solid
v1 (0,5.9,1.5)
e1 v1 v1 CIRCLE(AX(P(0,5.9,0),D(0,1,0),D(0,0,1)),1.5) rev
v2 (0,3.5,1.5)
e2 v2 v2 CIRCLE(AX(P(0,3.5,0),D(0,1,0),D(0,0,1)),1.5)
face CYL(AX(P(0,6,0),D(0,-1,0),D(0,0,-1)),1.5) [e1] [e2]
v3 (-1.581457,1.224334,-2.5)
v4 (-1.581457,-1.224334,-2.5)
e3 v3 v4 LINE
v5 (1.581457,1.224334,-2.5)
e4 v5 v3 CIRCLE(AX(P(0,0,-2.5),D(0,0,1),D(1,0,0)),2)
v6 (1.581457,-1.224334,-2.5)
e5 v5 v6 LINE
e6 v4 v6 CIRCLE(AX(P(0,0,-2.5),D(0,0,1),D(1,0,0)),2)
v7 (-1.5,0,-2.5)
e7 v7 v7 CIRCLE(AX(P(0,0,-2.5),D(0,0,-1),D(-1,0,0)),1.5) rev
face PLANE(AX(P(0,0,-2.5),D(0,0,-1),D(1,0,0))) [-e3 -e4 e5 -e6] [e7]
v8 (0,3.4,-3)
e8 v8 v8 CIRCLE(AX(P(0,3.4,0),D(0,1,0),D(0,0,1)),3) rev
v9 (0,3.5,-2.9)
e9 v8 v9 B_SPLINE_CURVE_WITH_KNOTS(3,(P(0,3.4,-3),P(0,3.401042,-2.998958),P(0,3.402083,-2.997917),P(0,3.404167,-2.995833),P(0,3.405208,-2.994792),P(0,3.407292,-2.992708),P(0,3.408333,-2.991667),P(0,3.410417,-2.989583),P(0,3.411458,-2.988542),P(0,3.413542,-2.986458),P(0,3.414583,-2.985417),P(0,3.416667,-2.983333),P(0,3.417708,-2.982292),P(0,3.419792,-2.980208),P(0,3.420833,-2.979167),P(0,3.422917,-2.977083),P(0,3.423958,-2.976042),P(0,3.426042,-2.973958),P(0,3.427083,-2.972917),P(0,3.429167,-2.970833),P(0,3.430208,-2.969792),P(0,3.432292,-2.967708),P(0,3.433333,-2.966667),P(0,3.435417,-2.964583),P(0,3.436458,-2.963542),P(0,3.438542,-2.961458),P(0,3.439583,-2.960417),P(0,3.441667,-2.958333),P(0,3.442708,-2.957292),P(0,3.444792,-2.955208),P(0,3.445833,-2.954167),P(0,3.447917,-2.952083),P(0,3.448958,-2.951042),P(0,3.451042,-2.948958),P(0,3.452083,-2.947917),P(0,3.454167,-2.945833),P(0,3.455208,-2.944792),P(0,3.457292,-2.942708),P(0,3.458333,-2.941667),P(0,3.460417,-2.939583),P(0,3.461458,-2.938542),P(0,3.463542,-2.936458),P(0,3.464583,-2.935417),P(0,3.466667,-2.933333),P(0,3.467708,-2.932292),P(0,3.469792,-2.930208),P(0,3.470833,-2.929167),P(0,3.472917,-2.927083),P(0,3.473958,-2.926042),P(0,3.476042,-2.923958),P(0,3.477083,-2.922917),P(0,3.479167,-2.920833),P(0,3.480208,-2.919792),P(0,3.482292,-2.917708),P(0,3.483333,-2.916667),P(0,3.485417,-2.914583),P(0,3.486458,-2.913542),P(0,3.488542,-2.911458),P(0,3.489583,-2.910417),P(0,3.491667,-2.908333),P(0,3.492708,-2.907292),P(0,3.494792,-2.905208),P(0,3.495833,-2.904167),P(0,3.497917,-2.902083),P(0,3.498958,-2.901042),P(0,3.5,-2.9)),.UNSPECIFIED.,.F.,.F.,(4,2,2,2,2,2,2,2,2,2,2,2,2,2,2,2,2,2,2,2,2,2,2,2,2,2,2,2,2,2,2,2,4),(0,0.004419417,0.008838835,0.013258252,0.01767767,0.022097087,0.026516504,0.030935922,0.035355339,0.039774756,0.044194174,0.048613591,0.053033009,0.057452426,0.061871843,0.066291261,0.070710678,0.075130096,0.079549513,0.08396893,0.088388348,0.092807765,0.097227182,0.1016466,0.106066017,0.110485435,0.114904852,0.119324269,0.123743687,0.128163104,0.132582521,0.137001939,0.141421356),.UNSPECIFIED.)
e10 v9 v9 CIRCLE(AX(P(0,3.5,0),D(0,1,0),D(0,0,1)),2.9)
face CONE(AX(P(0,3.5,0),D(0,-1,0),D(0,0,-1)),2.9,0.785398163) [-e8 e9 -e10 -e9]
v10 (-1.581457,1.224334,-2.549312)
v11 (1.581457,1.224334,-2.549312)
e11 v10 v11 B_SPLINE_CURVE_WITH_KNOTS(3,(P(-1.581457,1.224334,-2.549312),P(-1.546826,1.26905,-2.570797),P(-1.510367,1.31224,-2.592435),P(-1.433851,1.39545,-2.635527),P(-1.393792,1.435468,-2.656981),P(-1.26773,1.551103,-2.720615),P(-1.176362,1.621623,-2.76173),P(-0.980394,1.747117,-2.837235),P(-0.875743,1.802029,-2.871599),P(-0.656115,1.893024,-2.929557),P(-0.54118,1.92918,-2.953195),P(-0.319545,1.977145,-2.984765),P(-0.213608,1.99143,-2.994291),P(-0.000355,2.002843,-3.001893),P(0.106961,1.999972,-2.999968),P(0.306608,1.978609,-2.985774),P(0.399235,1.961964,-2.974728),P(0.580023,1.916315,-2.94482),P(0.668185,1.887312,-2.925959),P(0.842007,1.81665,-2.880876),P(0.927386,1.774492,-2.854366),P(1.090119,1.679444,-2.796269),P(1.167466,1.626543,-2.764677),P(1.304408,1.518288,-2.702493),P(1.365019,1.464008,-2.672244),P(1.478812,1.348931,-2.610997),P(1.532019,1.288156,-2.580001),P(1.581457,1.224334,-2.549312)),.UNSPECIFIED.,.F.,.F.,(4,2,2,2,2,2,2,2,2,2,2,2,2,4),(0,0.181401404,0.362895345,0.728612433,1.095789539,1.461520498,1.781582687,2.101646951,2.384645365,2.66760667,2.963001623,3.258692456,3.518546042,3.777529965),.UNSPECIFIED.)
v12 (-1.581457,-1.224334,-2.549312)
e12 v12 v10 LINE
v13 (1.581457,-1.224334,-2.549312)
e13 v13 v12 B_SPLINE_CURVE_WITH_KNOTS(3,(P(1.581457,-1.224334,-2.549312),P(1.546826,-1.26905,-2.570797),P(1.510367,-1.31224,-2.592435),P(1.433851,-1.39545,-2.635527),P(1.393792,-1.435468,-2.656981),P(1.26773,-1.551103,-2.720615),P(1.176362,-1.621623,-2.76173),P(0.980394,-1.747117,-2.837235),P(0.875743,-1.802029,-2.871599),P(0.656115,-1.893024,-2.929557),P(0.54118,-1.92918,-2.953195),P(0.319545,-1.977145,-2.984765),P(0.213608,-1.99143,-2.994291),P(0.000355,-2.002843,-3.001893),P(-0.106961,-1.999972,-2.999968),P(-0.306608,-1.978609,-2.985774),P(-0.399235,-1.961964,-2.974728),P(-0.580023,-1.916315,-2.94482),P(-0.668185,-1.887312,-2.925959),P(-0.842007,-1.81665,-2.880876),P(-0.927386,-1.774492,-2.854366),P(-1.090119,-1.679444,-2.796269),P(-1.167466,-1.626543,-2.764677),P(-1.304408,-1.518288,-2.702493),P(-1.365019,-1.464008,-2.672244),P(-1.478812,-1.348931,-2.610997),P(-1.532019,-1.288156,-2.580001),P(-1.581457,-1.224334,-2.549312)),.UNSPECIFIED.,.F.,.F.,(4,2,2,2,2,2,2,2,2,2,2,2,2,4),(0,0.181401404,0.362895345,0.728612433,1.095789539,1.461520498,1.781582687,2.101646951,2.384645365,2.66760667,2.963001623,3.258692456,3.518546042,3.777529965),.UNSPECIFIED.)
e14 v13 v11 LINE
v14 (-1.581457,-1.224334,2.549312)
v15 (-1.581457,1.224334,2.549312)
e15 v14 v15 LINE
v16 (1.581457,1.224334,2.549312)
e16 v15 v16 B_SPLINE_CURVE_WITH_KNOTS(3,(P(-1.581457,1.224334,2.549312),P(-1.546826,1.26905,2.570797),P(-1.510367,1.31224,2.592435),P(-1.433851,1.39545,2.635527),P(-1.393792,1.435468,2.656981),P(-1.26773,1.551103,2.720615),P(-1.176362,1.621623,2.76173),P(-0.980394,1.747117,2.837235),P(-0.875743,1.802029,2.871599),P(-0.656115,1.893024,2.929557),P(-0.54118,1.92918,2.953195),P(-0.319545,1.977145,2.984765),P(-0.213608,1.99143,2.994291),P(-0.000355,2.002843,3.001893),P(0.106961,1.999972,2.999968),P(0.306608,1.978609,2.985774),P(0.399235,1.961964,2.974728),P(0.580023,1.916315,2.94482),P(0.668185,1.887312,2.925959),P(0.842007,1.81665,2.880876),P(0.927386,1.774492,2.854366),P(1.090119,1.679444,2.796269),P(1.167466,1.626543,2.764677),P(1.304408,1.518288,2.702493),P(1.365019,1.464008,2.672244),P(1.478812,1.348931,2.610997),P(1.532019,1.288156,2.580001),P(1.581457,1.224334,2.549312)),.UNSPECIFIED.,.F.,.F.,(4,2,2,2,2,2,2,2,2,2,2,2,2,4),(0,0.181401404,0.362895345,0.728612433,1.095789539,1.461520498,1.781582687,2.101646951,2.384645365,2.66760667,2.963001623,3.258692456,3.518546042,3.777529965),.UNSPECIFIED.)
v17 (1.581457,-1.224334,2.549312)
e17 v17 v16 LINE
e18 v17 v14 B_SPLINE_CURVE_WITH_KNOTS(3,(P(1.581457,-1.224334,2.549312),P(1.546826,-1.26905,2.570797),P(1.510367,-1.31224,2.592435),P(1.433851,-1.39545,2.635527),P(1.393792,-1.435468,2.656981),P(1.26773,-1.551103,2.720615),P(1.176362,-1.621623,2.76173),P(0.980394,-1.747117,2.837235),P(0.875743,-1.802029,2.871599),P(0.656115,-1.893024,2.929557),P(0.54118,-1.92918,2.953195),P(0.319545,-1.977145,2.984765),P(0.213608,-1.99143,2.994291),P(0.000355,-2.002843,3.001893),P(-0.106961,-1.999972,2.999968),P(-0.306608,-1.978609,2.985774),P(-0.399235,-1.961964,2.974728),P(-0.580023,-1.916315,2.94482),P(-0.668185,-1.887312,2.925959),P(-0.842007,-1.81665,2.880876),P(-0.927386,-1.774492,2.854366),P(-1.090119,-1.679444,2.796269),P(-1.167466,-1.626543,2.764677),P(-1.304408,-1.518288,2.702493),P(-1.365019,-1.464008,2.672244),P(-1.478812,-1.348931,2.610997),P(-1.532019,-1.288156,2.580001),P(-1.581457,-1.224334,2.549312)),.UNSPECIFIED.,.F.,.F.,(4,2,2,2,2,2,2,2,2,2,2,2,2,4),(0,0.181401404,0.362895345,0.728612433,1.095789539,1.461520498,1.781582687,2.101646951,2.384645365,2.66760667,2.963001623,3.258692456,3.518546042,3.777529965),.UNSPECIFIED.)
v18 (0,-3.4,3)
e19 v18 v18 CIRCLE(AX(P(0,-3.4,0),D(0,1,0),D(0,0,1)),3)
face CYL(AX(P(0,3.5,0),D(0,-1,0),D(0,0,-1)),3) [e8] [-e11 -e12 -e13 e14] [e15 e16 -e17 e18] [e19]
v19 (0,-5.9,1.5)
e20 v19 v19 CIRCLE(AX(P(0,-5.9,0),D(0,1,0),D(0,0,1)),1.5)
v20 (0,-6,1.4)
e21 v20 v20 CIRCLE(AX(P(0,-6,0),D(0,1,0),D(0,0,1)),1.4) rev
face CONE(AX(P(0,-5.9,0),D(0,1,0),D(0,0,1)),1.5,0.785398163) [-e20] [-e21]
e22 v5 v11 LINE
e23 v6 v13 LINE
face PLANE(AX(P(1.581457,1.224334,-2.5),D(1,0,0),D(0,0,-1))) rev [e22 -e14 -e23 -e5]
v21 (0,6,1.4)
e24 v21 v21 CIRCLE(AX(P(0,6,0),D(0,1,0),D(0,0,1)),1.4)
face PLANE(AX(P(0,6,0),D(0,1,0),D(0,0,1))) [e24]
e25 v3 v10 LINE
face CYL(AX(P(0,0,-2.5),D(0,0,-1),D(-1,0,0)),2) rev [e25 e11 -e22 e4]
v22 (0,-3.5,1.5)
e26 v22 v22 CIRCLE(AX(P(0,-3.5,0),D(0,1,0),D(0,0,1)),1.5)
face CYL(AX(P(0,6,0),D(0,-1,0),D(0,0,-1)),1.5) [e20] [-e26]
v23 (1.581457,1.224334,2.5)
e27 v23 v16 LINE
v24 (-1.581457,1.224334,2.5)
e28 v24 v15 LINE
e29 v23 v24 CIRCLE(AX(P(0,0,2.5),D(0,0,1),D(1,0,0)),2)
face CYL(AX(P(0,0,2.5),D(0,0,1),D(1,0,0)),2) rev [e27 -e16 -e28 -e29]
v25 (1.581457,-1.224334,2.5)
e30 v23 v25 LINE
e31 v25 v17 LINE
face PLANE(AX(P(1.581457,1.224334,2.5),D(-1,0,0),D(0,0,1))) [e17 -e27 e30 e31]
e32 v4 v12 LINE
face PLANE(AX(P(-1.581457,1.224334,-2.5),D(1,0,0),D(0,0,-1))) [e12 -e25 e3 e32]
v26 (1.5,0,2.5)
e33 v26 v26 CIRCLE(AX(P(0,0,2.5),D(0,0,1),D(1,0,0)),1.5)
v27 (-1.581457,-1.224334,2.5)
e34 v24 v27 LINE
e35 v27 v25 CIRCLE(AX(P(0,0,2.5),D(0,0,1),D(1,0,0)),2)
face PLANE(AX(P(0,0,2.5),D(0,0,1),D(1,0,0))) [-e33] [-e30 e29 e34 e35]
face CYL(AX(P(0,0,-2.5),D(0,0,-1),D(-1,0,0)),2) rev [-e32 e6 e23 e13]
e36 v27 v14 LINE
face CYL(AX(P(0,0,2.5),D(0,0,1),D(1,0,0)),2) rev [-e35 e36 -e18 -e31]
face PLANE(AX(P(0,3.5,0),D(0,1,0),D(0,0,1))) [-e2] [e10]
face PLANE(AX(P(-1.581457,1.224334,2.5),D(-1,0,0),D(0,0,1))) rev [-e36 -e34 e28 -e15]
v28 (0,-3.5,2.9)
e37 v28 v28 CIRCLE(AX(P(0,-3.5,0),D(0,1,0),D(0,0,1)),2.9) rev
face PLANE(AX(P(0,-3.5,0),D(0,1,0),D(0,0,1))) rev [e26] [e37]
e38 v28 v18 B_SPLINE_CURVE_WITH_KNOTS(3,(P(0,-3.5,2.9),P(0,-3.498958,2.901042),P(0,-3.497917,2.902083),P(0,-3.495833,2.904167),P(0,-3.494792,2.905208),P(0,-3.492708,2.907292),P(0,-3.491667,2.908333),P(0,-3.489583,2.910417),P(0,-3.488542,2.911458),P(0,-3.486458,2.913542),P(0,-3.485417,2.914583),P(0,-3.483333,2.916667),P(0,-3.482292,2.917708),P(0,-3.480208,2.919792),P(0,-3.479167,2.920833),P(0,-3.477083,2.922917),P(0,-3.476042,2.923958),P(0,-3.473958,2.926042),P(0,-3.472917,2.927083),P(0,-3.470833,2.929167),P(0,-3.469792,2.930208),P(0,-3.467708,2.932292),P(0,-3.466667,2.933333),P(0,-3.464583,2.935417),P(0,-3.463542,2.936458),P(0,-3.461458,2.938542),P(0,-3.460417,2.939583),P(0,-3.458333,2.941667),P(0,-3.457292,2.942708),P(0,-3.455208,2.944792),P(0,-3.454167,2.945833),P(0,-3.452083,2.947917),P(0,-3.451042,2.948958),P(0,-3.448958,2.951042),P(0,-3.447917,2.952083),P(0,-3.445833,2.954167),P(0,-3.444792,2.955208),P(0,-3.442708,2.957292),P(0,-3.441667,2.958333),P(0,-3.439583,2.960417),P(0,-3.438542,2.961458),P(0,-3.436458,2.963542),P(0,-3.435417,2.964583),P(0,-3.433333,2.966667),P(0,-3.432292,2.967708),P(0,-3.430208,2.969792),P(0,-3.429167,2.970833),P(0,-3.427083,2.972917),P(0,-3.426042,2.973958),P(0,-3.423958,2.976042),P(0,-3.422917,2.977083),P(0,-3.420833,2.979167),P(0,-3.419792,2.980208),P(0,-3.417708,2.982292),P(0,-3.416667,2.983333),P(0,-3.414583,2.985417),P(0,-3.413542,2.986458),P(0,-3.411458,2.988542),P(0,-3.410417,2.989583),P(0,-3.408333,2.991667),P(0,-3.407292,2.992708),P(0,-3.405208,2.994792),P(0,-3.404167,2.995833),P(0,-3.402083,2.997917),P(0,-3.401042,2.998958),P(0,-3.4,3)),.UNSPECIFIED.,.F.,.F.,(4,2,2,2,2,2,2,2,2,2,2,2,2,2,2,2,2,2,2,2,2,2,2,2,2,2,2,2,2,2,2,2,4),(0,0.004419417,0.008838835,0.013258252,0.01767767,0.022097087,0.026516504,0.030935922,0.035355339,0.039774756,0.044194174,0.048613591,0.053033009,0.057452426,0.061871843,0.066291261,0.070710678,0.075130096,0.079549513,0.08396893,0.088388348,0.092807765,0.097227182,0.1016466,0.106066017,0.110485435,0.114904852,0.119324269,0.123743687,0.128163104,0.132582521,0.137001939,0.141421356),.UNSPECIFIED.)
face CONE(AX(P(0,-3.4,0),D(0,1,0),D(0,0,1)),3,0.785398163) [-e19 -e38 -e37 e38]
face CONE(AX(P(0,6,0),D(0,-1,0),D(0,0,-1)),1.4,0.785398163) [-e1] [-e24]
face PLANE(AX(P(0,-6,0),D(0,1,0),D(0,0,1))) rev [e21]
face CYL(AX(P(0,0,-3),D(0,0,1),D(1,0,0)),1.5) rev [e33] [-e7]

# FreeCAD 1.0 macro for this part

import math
import FreeCAD as App
import Part
import Sketcher


def edges_at(feature, points):
    """Names of the edges that pass closest to the given points."""
    edges = feature.Shape.Edges
    near = lambda p: min(range(len(edges)), key=lambda i: edges[i].distToShape(Part.Vertex(*p))[0])
    return sorted({f"Edge{near(p) + 1}" for p in points})

doc = App.newDocument("Part")
body = doc.addObject("PartDesign::Body", "Body")

# Sketch on XZ plane
sketch1 = body.newObject("Sketcher::SketchObject", "Sketch")
sketch1.AttachmentSupport = (doc.getObject("XZ_Plane"), [""])
sketch1.MapMode = "FlatFace"
sketch1.addGeometry(Part.Circle(App.Vector(0, 0, 0), App.Vector(0, 0, 1), 1.5), False)
sketch1.addConstraint([
    Sketcher.Constraint("Coincident", 0, 3, -1, 1),
    Sketcher.Constraint("Diameter", 0, 3.0),
])
pad1 = body.newObject("PartDesign::Pad", "Pad")
pad1.Profile = sketch1
pad1.Length = 12
pad1.Midplane = True

# Sketch on XZ plane
sketch2 = body.newObject("Sketcher::SketchObject", "Sketch001")
sketch2.AttachmentSupport = (doc.getObject("XZ_Plane"), [""])
sketch2.MapMode = "FlatFace"
sketch2.addGeometry(Part.Circle(App.Vector(0, 0, 0), App.Vector(0, 0, 1), 3), False)
sketch2.addConstraint([
    Sketcher.Constraint("Coincident", 0, 3, -1, 1),
    Sketcher.Constraint("Diameter", 0, 6.0),
])
pad2 = body.newObject("PartDesign::Pad", "Pad001")
pad2.Profile = sketch2
pad2.Length = 7
pad2.Midplane = True

# Sketch on XY plane
sketch3 = body.newObject("Sketcher::SketchObject", "Sketch002")
sketch3.AttachmentSupport = (doc.getObject("XY_Plane"), [""])
sketch3.MapMode = "FlatFace"
sketch3.AttachmentOffset = App.Placement(App.Vector(0, 0, 3), App.Rotation())
sketch3.addGeometry([
    Part.LineSegment(App.Vector(1.6, -1.2, 0), App.Vector(1.6, 1.2, 0)),
    Part.ArcOfCircle(Part.Circle(App.Vector(0, 0, 0), App.Vector(0, 0, 1), 2), math.radians(38), math.radians(142)),
    Part.LineSegment(App.Vector(-1.6, 1.2, 0), App.Vector(-1.6, -1.2, 0)),
    Part.ArcOfCircle(Part.Circle(App.Vector(0, 0, 0), App.Vector(0, 0, 1), 2), math.radians(-142), math.radians(-38)),
], False)
sketch3.addConstraint([
    Sketcher.Constraint("Coincident", 0, 2, 1, 1),
    Sketcher.Constraint("Coincident", 1, 2, 2, 1),
    Sketcher.Constraint("Coincident", 2, 2, 3, 1),
    Sketcher.Constraint("Coincident", 3, 2, 0, 1),
    Sketcher.Constraint("Vertical", 0),
    Sketcher.Constraint("Vertical", 2),
    Sketcher.Constraint("Coincident", 1, 3, -1, 1),
    Sketcher.Constraint("Coincident", 3, 3, -1, 1),
    Sketcher.Constraint("Equal", 1, 3),
    Sketcher.Constraint("Horizontal", 0, 2, 1, 2),
    Sketcher.Constraint("Radius", 1, 2.0),
    Sketcher.Constraint("DistanceY", 0, 1, 0, 2, 2.448668),
])
pocket1 = body.newObject("PartDesign::Pocket", "Pocket")
pocket1.Profile = sketch3
pocket1.Length = 0.5

# Sketch on XY plane
sketch4 = body.newObject("Sketcher::SketchObject", "Sketch003")
sketch4.AttachmentSupport = (doc.getObject("XY_Plane"), [""])
sketch4.MapMode = "FlatFace"
sketch4.AttachmentOffset = App.Placement(App.Vector(0, 0, 3), App.Rotation())
sketch4.addGeometry(Part.Circle(App.Vector(0, 0, 0), App.Vector(0, 0, 1), 1.5), False)
sketch4.addConstraint([
    Sketcher.Constraint("Coincident", 0, 3, -1, 1),
    Sketcher.Constraint("Diameter", 0, 3.0),
])
pocket2 = body.newObject("PartDesign::Pocket", "Pocket001")
pocket2.Profile = sketch4
pocket2.Type = "ThroughAll"
doc.recompute()

mirrored = body.newObject("PartDesign::Mirrored", "Mirrored")
mirrored.Originals = [pocket1]
mirrored.MirrorPlane = (doc.getObject("XY_Plane"), [""])
body.Tip = mirrored
doc.recompute()

chamfer = body.newObject("PartDesign::Chamfer", "Chamfer")
chamfer.Base = (mirrored, edges_at(mirrored, [
    (0, -6, -1.5),
    (0, 6, -1.5),
    (0, -3.5, -3),
    (0, 3.5, -3),
]))
chamfer.Size = 0.1

doc.recompute()
